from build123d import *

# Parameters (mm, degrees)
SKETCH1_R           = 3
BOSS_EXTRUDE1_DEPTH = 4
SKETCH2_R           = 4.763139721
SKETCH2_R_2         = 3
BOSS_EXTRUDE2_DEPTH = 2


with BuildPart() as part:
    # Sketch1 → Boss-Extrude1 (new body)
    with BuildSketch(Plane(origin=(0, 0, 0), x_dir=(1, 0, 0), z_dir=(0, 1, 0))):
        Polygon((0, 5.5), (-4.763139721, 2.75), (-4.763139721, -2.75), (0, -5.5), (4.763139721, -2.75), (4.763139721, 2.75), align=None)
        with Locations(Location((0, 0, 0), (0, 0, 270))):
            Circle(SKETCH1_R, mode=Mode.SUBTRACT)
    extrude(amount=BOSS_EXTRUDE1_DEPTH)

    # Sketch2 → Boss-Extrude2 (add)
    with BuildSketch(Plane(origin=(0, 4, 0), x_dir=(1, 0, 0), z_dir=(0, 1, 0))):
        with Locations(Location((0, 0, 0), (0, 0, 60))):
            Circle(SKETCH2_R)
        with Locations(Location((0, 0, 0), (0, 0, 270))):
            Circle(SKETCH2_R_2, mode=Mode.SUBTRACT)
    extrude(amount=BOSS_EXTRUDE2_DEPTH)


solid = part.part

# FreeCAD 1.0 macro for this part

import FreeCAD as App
import Part
import Sketcher
Q = App.Units.Quantity

doc = App.newDocument("Part")
body = doc.addObject("PartDesign::Body", "Body")

sketch1 = body.newObject("Sketcher::SketchObject", "Sketch")
sketch1.AttachmentSupport = (doc.getObject("XZ_Plane"), [""])
sketch1.MapMode = "FlatFace"
sketch1.addGeometry(Part.LineSegment(App.Vector(0, -5.5, 0), App.Vector(-4.8, -2.8, 0)), False)
sketch1.addGeometry(Part.LineSegment(App.Vector(-4.8, -2.8, 0), App.Vector(-4.8, 2.8, 0)), False)
sketch1.addGeometry(Part.LineSegment(App.Vector(-4.8, 2.8, 0), App.Vector(0, 5.5, 0)), False)
sketch1.addGeometry(Part.LineSegment(App.Vector(0, 5.5, 0), App.Vector(4.8, 2.8, 0)), False)
sketch1.addGeometry(Part.LineSegment(App.Vector(4.8, 2.8, 0), App.Vector(4.8, -2.8, 0)), False)
sketch1.addGeometry(Part.LineSegment(App.Vector(4.8, -2.8, 0), App.Vector(0, -5.5, 0)), False)
sketch1.addGeometry(Part.Circle(App.Vector(0, 0, 0), App.Vector(0, 0, 1), 3), False)
sketch1.addConstraint(Sketcher.Constraint("Coincident", 0, 2, 1, 1))
sketch1.addConstraint(Sketcher.Constraint("Coincident", 1, 2, 2, 1))
sketch1.addConstraint(Sketcher.Constraint("Coincident", 2, 2, 3, 1))
sketch1.addConstraint(Sketcher.Constraint("Coincident", 3, 2, 4, 1))
sketch1.addConstraint(Sketcher.Constraint("Coincident", 4, 2, 5, 1))
sketch1.addConstraint(Sketcher.Constraint("Coincident", 5, 2, 0, 1))
sketch1.addConstraint(Sketcher.Constraint("Vertical", 1))
sketch1.addConstraint(Sketcher.Constraint("Vertical", 4))
sketch1.addConstraint(Sketcher.Constraint("Coincident", 6, 3, -1, 1))
sketch1.addConstraint(Sketcher.Constraint("Symmetric", 0, 2, 3, 2, -1, 1))
sketch1.addConstraint(Sketcher.Constraint("Symmetric", 2, 2, 5, 2, -1, 1))
sketch1.addConstraint(Sketcher.Constraint("PointOnObject", 2, 2, -2))
sketch1.addConstraint(Sketcher.Constraint("Parallel", 2, 5))
sketch1.addConstraint(Sketcher.Constraint("Horizontal", 1, 2, 3, 2))
sketch1.addConstraint(Sketcher.Constraint("Diameter", 6, 6.0))
sketch1.addConstraint(Sketcher.Constraint("Angle", 0, Q("150 deg")))
sketch1.addConstraint(Sketcher.Constraint("DistanceY", 1, 1, 1, 2, 5.5))
sketch1.addConstraint(Sketcher.Constraint("Distance", 0, 5.5))
pad1 = body.newObject("PartDesign::Pad", "Pad")
pad1.Profile = sketch1
pad1.Length = 4
pad1.Reversed = True

sketch2 = body.newObject("Sketcher::SketchObject", "Sketch001")
sketch2.AttachmentSupport = (doc.getObject("XZ_Plane"), [""])
sketch2.MapMode = "FlatFace"
sketch2.AttachmentOffset = App.Placement(App.Vector(0, 0, -4), App.Rotation())
sketch2.addGeometry(Part.Circle(App.Vector(0, 0, 0), App.Vector(0, 0, 1), 4.8), False)
sketch2.addGeometry(Part.Circle(App.Vector(0, 0, 0), App.Vector(0, 0, 1), 3), False)
sketch2.addConstraint(Sketcher.Constraint("Coincident", 0, 3, -1, 1))
sketch2.addConstraint(Sketcher.Constraint("Coincident", 1, 3, -1, 1))
sketch2.addConstraint(Sketcher.Constraint("Diameter", 1, 6.0))
sketch2.addConstraint(Sketcher.Constraint("Diameter", 0, 9.526279))
pad2 = body.newObject("PartDesign::Pad", "Pad001")
pad2.Profile = sketch2
pad2.Length = 2
pad2.Reversed = True

doc.recompute()
